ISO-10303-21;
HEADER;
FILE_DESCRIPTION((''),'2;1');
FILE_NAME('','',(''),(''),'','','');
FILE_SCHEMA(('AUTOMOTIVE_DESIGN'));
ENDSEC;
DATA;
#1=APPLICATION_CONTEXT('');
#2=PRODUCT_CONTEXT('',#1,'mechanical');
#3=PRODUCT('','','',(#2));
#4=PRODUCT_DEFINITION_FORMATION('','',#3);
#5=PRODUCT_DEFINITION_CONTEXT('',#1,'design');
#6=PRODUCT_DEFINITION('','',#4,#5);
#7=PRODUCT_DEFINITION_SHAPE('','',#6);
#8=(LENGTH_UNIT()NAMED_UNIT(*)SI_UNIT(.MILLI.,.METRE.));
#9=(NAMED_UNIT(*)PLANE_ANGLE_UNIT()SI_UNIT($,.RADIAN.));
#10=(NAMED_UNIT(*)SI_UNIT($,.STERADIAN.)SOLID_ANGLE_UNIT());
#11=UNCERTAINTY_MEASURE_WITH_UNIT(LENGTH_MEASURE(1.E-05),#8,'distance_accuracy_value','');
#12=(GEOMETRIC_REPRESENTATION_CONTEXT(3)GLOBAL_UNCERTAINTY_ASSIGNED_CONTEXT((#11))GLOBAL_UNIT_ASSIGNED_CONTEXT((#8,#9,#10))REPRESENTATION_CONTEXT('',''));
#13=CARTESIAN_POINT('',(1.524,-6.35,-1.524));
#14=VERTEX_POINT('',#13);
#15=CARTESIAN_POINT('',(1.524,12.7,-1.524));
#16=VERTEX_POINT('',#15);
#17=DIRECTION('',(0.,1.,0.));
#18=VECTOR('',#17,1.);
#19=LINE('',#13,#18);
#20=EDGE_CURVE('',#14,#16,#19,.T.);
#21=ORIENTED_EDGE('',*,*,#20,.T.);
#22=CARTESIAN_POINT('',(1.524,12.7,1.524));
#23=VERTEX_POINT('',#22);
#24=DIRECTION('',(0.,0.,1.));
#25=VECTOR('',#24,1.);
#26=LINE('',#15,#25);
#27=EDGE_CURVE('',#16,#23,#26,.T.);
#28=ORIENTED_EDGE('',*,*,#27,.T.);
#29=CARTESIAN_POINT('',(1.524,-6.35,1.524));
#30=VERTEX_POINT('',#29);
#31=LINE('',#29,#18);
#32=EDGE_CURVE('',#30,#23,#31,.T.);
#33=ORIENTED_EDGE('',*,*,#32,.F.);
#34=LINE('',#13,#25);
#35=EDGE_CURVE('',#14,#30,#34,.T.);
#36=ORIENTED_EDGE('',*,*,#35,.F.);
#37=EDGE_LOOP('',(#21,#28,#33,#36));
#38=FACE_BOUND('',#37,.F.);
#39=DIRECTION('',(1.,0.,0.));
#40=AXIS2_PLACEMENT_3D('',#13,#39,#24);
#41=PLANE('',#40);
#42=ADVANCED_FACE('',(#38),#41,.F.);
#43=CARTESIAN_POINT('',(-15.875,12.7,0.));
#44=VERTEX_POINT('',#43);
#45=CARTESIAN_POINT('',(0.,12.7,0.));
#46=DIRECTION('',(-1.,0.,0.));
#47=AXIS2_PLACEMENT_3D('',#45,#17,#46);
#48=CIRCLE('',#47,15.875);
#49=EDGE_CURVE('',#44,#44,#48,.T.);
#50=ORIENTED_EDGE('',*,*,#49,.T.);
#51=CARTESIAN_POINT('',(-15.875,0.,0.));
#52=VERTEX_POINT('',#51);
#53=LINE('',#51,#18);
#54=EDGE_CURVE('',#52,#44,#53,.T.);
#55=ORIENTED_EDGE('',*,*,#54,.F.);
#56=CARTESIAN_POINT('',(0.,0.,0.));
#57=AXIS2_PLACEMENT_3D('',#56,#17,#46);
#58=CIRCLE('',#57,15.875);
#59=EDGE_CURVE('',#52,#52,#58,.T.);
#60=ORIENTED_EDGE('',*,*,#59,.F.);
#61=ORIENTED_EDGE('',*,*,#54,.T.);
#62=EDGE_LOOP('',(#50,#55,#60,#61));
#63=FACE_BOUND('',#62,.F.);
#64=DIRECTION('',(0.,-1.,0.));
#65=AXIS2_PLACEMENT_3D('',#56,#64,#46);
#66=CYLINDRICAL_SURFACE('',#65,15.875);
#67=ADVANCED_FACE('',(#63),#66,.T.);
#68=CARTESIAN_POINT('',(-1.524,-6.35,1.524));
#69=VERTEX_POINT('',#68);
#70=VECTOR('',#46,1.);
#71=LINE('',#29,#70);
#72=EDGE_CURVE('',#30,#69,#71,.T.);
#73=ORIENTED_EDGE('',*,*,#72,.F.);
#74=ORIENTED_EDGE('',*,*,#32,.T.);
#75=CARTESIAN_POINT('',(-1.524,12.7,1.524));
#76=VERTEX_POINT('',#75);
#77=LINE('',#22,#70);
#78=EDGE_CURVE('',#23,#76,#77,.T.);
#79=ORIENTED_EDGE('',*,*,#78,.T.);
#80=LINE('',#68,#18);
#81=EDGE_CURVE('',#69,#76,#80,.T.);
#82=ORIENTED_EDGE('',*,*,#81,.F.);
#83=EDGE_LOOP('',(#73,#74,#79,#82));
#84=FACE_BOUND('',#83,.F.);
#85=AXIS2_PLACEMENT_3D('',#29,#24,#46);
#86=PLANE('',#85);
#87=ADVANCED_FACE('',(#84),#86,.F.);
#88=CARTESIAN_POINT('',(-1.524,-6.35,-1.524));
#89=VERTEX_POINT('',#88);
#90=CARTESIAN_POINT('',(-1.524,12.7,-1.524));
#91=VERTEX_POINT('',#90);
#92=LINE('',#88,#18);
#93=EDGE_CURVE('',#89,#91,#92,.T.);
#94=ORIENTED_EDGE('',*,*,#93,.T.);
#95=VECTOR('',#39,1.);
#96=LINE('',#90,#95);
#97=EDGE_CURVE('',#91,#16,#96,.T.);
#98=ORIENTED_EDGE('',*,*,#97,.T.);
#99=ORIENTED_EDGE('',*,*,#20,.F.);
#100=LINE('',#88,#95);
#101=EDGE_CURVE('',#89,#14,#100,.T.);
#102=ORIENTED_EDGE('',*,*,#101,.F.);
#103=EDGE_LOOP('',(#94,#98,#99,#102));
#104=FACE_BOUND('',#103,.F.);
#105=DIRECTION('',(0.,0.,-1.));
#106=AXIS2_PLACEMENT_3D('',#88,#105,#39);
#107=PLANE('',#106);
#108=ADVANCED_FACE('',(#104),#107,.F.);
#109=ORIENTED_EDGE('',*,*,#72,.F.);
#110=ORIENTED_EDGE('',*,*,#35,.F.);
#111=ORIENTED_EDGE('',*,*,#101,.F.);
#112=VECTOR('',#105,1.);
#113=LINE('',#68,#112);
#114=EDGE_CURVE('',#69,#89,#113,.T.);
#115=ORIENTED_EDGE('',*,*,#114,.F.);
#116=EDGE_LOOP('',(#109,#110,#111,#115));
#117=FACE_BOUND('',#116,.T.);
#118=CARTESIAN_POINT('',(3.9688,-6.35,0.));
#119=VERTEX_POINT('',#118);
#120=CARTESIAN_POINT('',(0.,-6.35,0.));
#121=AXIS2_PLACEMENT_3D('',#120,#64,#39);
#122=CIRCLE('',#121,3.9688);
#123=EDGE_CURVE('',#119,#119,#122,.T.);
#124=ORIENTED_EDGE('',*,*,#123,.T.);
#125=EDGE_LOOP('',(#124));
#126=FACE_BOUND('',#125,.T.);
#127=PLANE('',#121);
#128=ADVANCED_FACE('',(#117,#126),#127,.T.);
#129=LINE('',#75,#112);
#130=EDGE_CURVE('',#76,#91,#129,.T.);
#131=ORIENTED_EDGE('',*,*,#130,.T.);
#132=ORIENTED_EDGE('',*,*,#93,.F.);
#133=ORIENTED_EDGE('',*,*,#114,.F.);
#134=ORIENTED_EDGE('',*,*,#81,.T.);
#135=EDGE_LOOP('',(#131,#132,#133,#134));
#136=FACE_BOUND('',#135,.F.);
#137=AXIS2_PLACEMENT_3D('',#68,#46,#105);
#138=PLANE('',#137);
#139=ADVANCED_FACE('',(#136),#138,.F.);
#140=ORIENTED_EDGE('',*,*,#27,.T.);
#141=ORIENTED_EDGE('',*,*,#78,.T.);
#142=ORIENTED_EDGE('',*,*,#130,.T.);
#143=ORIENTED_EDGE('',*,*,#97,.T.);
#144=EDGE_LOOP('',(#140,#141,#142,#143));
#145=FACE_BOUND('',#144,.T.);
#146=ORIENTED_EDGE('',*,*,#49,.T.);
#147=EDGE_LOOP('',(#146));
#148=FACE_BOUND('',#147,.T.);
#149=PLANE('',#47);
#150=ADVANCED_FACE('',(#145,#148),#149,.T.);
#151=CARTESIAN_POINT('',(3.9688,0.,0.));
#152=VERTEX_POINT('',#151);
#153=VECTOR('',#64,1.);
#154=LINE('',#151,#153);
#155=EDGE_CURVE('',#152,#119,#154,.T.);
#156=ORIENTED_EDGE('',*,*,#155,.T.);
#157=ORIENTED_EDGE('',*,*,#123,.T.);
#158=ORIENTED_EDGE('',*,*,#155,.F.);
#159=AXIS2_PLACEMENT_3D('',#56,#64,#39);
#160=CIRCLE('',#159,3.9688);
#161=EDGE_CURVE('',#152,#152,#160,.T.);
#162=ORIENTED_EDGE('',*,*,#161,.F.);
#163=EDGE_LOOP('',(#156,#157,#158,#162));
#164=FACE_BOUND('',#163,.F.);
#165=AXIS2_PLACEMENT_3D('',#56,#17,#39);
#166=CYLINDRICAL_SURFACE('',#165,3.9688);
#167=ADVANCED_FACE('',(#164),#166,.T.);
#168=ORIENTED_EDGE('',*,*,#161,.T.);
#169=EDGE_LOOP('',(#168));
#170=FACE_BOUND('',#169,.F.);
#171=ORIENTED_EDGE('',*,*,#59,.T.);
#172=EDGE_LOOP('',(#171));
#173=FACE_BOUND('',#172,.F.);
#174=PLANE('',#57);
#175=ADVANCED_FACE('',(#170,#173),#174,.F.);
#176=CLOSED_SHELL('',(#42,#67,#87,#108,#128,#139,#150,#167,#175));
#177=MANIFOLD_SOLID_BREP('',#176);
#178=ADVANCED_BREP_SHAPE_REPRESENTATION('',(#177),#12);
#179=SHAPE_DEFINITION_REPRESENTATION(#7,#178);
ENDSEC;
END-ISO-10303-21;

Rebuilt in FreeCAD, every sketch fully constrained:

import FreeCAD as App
import Part
import Sketcher
Q = App.Units.Quantity


def add_polygon(sketch, points):
    """Adds a closed chain of lines whose ends are joined by coincident constraints."""
    first, n = sketch.GeometryCount, len(points)
    for a, b in zip(points, points[1:] + points[:1]):
        sketch.addGeometry(Part.LineSegment(App.Vector(*a, 0), App.Vector(*b, 0)), False)
    for i in range(n):
        sketch.addConstraint(Sketcher.Constraint("Coincident", first + i, 2, first + (i + 1) % n, 1))

doc = App.newDocument("Part")
body = doc.addObject("PartDesign::Body", "Body")

sketch1 = doc.addObject("Sketcher::SketchObject", "Sketch")
body.addObject(sketch1)
sketch1.AttachmentSupport = (doc.XZ_Plane, [""])
sketch1.MapMode = "FlatFace"
sketch1.addGeometry(Part.Circle(App.Vector(0, 0, 0), App.Vector(0, 0, 1), 16), False)
sketch1.addConstraint([
    Sketcher.Constraint("Coincident", 0, 3, -1, 1),
    Sketcher.Constraint("Diameter", 0, Q("1.25 in")),
])
pad1 = doc.addObject("PartDesign::Pad", "Pad")
body.addObject(pad1)
pad1.Profile = sketch1
pad1.Length = Q("0.5 in")
pad1.Reversed = True

sketch2 = doc.addObject("Sketcher::SketchObject", "Sketch001")
body.addObject(sketch2)
sketch2.AttachmentSupport = (doc.XZ_Plane, [""])
sketch2.MapMode = "FlatFace"
sketch2.addGeometry(Part.Circle(App.Vector(0, 0, 0), App.Vector(0, 0, 1), 4), False)
sketch2.addConstraint([
    Sketcher.Constraint("Coincident", 0, 3, -1, 1),
    Sketcher.Constraint("Diameter", 0, Q("0.3125 in")),
])
pad2 = doc.addObject("PartDesign::Pad", "Pad001")
body.addObject(pad2)
pad2.Profile = sketch2
pad2.Length = Q("0.25 in")

sketch3 = doc.addObject("Sketcher::SketchObject", "Sketch002")
body.addObject(sketch3)
sketch3.AttachmentSupport = (doc.XZ_Plane, [""])
sketch3.MapMode = "FlatFace"
sketch3.AttachmentOffset = App.Placement(App.Vector(0, 0, 0.25 * 25.4), App.Rotation())
add_polygon(sketch3, [(1.5, -1.5), (1.5, 1.5), (-1.5, 1.5), (-1.5, -1.5)])
sketch3.addConstraint([
    Sketcher.Constraint("Vertical", 0),
    Sketcher.Constraint("Horizontal", 1),
    Sketcher.Constraint("Vertical", 2),
    Sketcher.Constraint("Horizontal", 3),
    Sketcher.Constraint("Symmetric", 0, 2, 2, 2, -1, 1),
    Sketcher.Constraint("Equal", 3, 0),
    Sketcher.Constraint("DistanceX", 1, 2, 1, 1, Q("0.12 in")),
])
pocket1 = doc.addObject("PartDesign::Pocket", "Pocket")
body.addObject(pocket1)
pocket1.Profile = sketch3
pocket1.Length = Q("0.75 in")

doc.recompute()
